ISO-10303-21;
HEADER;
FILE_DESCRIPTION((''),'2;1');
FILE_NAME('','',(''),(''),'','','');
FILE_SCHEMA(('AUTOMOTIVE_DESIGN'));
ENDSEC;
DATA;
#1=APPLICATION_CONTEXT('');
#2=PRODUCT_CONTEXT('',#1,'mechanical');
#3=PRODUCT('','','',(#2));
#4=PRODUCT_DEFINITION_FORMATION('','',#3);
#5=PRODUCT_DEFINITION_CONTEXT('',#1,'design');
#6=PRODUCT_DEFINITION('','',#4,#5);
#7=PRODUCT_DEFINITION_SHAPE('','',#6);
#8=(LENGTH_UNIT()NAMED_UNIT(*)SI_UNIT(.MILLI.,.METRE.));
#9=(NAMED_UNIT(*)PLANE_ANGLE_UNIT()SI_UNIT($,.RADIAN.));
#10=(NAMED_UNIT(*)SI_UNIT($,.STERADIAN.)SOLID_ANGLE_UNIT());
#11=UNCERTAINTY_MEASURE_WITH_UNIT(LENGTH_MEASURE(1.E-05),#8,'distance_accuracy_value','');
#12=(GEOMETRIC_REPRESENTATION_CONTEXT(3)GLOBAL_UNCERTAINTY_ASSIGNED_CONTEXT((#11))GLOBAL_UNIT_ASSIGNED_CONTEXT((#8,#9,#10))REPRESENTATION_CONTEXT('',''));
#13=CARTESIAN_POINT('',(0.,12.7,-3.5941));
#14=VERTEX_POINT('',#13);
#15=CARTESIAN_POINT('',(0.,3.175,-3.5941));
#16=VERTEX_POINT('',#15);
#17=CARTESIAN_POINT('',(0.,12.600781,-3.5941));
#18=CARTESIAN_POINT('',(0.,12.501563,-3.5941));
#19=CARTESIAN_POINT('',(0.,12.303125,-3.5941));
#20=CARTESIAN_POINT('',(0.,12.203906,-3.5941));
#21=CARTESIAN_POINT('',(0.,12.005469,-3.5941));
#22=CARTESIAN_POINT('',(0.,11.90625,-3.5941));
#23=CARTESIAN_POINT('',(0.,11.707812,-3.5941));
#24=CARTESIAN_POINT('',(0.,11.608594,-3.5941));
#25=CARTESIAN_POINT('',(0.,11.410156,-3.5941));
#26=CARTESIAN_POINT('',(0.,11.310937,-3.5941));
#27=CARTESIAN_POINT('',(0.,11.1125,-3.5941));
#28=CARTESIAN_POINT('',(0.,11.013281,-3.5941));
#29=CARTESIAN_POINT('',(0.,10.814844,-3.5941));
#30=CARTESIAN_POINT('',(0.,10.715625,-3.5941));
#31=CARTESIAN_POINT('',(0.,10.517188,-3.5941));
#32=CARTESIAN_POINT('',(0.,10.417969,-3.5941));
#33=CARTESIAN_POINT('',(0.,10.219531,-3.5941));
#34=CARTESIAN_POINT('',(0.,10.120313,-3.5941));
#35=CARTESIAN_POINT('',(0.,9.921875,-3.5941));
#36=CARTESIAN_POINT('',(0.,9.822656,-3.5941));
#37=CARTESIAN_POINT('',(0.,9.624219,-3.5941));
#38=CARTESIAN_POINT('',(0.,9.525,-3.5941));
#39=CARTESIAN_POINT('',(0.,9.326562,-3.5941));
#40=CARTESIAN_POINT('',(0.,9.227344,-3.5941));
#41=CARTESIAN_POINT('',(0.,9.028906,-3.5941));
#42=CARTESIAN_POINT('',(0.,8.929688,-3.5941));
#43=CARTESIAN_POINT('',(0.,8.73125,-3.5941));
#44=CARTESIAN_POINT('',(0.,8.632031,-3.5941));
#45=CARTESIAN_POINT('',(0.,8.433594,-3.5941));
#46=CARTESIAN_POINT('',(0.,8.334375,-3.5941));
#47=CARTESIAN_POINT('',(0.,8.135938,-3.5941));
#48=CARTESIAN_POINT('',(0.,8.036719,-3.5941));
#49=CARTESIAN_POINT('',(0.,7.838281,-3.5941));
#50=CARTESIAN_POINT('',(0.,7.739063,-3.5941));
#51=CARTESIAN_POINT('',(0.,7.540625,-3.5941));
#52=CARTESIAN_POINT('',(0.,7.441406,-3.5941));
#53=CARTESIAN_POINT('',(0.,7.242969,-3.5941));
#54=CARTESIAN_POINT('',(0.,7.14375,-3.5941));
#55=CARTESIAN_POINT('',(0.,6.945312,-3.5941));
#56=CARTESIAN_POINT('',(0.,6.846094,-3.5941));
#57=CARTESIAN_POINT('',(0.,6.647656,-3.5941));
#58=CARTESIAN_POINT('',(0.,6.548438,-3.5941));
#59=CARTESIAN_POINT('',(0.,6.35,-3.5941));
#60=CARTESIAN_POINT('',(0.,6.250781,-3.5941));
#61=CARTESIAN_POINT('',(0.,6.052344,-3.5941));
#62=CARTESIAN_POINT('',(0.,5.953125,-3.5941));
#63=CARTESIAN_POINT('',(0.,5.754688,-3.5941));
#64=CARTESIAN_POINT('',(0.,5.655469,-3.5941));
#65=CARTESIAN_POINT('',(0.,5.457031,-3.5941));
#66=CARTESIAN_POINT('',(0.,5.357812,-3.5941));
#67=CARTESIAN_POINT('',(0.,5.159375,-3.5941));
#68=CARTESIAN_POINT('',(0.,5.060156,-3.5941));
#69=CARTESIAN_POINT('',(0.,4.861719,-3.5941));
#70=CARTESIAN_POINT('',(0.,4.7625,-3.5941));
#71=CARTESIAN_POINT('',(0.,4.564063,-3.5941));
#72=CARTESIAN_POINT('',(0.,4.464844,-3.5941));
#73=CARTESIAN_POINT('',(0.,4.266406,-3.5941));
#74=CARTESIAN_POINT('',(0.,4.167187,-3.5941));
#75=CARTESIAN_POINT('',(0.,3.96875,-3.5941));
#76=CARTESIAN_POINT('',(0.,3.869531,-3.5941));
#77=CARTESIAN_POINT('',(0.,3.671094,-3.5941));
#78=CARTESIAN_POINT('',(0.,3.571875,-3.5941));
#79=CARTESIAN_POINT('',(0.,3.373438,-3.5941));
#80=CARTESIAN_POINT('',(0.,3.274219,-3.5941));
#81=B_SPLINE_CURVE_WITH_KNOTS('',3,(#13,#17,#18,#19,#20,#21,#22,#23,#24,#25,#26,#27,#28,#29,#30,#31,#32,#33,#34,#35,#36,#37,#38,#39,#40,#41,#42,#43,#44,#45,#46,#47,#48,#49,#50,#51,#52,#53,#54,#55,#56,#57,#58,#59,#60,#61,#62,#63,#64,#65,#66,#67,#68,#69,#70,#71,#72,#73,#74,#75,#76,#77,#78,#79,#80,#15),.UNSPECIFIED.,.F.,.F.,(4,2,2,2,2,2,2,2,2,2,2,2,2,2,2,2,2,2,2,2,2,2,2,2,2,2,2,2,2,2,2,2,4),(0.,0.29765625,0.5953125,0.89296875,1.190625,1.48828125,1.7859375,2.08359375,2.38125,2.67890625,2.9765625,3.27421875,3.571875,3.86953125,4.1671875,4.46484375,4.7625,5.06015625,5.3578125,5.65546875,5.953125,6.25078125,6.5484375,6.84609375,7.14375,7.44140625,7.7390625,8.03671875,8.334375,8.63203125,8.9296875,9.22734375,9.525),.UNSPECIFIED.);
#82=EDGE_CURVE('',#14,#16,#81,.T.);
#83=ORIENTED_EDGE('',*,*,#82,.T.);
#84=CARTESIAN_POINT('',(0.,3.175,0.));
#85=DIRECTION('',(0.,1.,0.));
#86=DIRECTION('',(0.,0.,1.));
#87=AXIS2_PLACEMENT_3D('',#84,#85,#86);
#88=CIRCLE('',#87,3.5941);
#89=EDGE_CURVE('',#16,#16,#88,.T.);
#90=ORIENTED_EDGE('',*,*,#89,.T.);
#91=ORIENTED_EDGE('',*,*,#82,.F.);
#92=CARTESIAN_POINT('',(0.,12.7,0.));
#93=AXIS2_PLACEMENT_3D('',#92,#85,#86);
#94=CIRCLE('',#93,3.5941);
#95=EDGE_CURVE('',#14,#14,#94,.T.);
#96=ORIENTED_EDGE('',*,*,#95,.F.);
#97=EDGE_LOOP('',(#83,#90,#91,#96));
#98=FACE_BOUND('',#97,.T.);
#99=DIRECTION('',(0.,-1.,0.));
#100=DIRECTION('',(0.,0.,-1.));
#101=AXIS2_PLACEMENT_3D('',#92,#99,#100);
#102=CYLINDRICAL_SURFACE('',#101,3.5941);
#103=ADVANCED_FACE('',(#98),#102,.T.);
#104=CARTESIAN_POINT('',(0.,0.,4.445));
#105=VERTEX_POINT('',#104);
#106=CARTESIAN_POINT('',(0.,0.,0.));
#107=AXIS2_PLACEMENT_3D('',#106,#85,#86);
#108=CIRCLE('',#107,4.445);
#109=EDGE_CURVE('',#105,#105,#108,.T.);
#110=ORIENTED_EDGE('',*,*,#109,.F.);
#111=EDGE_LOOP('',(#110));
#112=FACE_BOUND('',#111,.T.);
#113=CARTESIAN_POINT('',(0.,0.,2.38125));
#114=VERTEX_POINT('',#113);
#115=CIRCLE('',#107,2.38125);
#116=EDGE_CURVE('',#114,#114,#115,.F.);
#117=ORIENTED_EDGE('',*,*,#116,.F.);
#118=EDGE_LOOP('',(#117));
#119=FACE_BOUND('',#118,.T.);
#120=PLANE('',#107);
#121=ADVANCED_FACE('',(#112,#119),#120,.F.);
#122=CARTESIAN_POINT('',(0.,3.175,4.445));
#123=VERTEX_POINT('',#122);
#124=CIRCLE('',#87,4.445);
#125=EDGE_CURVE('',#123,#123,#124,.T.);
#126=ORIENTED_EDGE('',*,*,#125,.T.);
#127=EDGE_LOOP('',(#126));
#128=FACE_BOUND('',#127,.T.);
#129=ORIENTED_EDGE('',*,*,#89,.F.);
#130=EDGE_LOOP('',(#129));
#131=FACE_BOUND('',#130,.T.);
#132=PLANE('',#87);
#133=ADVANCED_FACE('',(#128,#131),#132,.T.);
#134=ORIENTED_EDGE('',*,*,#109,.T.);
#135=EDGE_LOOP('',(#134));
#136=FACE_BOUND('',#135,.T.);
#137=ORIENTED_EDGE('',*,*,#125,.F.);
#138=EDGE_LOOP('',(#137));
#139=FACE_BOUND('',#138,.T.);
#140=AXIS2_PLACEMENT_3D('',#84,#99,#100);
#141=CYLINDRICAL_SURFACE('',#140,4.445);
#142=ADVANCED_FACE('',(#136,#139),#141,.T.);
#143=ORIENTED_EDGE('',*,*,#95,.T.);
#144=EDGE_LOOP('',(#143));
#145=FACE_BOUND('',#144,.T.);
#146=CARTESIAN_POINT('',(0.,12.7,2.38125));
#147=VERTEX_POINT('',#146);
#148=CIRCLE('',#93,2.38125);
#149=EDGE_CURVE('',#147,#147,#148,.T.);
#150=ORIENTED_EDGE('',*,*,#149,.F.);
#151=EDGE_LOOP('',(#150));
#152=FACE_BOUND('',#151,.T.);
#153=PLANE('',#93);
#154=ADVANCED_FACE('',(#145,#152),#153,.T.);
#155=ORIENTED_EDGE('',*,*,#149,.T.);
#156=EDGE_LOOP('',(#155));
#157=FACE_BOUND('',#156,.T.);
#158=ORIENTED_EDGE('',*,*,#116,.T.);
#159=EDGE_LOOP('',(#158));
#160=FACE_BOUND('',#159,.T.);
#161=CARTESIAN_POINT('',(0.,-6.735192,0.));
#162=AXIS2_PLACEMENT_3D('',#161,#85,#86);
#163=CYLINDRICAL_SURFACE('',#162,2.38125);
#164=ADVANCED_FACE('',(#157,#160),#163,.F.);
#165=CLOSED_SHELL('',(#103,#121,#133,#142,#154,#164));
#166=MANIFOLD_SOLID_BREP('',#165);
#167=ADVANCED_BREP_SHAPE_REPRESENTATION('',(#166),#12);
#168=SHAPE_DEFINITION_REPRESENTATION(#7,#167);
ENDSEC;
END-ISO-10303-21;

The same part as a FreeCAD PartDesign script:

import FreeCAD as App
import Part
import Sketcher

V = App.Vector
Q = App.Units.Quantity

doc = App.newDocument("Part")
body = doc.addObject("PartDesign::Body", "Body")

# Sketch on XZ plane
sketch1 = body.newObject("Sketcher::SketchObject", "Sketch")
sketch1.AttachmentSupport = (doc.getObject("XZ_Plane"), [""])
sketch1.MapMode = "FlatFace"
sketch1.addGeometry(Part.Circle(V(0, 0, 0), V(0, 0, 1), 4.4), False)
sketch1.addConstraint([
    Sketcher.Constraint("Coincident", 0, 3, -1, 1),
    Sketcher.Constraint("Diameter", 0, Q("0.35 in")),
])
pad1 = body.newObject("PartDesign::Pad", "Pad")
pad1.Profile = sketch1
pad1.Length = Q("0.125 in")
pad1.Reversed = True

# Sketch on XZ plane
sketch2 = body.newObject("Sketcher::SketchObject", "Sketch001")
sketch2.AttachmentSupport = (doc.getObject("XZ_Plane"), [""])
sketch2.MapMode = "FlatFace"
sketch2.AttachmentOffset = App.Placement(V(0, 0, -0.125 * 25.4), App.Rotation())
sketch2.addGeometry(Part.Circle(V(0, 0, 0), V(0, 0, 1), 3.6), False)
sketch2.addConstraint([
    Sketcher.Constraint("Coincident", 0, 3, -1, 1),
    Sketcher.Constraint("Diameter", 0, Q("0.283 in")),
])
pad2 = body.newObject("PartDesign::Pad", "Pad001")
pad2.Profile = sketch2
pad2.Length = Q("0.375 in")
pad2.Reversed = True

# Sketch on XZ plane
sketch3 = body.newObject("Sketcher::SketchObject", "Sketch002")
sketch3.AttachmentSupport = (doc.getObject("XZ_Plane"), [""])
sketch3.MapMode = "FlatFace"
sketch3.AttachmentOffset = App.Placement(V(0, 0, -0.5 * 25.4), App.Rotation())
sketch3.addGeometry(Part.Circle(V(0, 0, 0), V(0, 0, 1), 2.4), False)
sketch3.addConstraint([
    Sketcher.Constraint("Coincident", 0, 3, -1, 1),
    Sketcher.Constraint("Diameter", 0, Q("0.1875 in")),
])
pocket1 = body.newObject("PartDesign::Pocket", "Pocket")
pocket1.Profile = sketch3
pocket1.Length = Q("0.5 in")
pocket1.Reversed = True

doc.recompute()
